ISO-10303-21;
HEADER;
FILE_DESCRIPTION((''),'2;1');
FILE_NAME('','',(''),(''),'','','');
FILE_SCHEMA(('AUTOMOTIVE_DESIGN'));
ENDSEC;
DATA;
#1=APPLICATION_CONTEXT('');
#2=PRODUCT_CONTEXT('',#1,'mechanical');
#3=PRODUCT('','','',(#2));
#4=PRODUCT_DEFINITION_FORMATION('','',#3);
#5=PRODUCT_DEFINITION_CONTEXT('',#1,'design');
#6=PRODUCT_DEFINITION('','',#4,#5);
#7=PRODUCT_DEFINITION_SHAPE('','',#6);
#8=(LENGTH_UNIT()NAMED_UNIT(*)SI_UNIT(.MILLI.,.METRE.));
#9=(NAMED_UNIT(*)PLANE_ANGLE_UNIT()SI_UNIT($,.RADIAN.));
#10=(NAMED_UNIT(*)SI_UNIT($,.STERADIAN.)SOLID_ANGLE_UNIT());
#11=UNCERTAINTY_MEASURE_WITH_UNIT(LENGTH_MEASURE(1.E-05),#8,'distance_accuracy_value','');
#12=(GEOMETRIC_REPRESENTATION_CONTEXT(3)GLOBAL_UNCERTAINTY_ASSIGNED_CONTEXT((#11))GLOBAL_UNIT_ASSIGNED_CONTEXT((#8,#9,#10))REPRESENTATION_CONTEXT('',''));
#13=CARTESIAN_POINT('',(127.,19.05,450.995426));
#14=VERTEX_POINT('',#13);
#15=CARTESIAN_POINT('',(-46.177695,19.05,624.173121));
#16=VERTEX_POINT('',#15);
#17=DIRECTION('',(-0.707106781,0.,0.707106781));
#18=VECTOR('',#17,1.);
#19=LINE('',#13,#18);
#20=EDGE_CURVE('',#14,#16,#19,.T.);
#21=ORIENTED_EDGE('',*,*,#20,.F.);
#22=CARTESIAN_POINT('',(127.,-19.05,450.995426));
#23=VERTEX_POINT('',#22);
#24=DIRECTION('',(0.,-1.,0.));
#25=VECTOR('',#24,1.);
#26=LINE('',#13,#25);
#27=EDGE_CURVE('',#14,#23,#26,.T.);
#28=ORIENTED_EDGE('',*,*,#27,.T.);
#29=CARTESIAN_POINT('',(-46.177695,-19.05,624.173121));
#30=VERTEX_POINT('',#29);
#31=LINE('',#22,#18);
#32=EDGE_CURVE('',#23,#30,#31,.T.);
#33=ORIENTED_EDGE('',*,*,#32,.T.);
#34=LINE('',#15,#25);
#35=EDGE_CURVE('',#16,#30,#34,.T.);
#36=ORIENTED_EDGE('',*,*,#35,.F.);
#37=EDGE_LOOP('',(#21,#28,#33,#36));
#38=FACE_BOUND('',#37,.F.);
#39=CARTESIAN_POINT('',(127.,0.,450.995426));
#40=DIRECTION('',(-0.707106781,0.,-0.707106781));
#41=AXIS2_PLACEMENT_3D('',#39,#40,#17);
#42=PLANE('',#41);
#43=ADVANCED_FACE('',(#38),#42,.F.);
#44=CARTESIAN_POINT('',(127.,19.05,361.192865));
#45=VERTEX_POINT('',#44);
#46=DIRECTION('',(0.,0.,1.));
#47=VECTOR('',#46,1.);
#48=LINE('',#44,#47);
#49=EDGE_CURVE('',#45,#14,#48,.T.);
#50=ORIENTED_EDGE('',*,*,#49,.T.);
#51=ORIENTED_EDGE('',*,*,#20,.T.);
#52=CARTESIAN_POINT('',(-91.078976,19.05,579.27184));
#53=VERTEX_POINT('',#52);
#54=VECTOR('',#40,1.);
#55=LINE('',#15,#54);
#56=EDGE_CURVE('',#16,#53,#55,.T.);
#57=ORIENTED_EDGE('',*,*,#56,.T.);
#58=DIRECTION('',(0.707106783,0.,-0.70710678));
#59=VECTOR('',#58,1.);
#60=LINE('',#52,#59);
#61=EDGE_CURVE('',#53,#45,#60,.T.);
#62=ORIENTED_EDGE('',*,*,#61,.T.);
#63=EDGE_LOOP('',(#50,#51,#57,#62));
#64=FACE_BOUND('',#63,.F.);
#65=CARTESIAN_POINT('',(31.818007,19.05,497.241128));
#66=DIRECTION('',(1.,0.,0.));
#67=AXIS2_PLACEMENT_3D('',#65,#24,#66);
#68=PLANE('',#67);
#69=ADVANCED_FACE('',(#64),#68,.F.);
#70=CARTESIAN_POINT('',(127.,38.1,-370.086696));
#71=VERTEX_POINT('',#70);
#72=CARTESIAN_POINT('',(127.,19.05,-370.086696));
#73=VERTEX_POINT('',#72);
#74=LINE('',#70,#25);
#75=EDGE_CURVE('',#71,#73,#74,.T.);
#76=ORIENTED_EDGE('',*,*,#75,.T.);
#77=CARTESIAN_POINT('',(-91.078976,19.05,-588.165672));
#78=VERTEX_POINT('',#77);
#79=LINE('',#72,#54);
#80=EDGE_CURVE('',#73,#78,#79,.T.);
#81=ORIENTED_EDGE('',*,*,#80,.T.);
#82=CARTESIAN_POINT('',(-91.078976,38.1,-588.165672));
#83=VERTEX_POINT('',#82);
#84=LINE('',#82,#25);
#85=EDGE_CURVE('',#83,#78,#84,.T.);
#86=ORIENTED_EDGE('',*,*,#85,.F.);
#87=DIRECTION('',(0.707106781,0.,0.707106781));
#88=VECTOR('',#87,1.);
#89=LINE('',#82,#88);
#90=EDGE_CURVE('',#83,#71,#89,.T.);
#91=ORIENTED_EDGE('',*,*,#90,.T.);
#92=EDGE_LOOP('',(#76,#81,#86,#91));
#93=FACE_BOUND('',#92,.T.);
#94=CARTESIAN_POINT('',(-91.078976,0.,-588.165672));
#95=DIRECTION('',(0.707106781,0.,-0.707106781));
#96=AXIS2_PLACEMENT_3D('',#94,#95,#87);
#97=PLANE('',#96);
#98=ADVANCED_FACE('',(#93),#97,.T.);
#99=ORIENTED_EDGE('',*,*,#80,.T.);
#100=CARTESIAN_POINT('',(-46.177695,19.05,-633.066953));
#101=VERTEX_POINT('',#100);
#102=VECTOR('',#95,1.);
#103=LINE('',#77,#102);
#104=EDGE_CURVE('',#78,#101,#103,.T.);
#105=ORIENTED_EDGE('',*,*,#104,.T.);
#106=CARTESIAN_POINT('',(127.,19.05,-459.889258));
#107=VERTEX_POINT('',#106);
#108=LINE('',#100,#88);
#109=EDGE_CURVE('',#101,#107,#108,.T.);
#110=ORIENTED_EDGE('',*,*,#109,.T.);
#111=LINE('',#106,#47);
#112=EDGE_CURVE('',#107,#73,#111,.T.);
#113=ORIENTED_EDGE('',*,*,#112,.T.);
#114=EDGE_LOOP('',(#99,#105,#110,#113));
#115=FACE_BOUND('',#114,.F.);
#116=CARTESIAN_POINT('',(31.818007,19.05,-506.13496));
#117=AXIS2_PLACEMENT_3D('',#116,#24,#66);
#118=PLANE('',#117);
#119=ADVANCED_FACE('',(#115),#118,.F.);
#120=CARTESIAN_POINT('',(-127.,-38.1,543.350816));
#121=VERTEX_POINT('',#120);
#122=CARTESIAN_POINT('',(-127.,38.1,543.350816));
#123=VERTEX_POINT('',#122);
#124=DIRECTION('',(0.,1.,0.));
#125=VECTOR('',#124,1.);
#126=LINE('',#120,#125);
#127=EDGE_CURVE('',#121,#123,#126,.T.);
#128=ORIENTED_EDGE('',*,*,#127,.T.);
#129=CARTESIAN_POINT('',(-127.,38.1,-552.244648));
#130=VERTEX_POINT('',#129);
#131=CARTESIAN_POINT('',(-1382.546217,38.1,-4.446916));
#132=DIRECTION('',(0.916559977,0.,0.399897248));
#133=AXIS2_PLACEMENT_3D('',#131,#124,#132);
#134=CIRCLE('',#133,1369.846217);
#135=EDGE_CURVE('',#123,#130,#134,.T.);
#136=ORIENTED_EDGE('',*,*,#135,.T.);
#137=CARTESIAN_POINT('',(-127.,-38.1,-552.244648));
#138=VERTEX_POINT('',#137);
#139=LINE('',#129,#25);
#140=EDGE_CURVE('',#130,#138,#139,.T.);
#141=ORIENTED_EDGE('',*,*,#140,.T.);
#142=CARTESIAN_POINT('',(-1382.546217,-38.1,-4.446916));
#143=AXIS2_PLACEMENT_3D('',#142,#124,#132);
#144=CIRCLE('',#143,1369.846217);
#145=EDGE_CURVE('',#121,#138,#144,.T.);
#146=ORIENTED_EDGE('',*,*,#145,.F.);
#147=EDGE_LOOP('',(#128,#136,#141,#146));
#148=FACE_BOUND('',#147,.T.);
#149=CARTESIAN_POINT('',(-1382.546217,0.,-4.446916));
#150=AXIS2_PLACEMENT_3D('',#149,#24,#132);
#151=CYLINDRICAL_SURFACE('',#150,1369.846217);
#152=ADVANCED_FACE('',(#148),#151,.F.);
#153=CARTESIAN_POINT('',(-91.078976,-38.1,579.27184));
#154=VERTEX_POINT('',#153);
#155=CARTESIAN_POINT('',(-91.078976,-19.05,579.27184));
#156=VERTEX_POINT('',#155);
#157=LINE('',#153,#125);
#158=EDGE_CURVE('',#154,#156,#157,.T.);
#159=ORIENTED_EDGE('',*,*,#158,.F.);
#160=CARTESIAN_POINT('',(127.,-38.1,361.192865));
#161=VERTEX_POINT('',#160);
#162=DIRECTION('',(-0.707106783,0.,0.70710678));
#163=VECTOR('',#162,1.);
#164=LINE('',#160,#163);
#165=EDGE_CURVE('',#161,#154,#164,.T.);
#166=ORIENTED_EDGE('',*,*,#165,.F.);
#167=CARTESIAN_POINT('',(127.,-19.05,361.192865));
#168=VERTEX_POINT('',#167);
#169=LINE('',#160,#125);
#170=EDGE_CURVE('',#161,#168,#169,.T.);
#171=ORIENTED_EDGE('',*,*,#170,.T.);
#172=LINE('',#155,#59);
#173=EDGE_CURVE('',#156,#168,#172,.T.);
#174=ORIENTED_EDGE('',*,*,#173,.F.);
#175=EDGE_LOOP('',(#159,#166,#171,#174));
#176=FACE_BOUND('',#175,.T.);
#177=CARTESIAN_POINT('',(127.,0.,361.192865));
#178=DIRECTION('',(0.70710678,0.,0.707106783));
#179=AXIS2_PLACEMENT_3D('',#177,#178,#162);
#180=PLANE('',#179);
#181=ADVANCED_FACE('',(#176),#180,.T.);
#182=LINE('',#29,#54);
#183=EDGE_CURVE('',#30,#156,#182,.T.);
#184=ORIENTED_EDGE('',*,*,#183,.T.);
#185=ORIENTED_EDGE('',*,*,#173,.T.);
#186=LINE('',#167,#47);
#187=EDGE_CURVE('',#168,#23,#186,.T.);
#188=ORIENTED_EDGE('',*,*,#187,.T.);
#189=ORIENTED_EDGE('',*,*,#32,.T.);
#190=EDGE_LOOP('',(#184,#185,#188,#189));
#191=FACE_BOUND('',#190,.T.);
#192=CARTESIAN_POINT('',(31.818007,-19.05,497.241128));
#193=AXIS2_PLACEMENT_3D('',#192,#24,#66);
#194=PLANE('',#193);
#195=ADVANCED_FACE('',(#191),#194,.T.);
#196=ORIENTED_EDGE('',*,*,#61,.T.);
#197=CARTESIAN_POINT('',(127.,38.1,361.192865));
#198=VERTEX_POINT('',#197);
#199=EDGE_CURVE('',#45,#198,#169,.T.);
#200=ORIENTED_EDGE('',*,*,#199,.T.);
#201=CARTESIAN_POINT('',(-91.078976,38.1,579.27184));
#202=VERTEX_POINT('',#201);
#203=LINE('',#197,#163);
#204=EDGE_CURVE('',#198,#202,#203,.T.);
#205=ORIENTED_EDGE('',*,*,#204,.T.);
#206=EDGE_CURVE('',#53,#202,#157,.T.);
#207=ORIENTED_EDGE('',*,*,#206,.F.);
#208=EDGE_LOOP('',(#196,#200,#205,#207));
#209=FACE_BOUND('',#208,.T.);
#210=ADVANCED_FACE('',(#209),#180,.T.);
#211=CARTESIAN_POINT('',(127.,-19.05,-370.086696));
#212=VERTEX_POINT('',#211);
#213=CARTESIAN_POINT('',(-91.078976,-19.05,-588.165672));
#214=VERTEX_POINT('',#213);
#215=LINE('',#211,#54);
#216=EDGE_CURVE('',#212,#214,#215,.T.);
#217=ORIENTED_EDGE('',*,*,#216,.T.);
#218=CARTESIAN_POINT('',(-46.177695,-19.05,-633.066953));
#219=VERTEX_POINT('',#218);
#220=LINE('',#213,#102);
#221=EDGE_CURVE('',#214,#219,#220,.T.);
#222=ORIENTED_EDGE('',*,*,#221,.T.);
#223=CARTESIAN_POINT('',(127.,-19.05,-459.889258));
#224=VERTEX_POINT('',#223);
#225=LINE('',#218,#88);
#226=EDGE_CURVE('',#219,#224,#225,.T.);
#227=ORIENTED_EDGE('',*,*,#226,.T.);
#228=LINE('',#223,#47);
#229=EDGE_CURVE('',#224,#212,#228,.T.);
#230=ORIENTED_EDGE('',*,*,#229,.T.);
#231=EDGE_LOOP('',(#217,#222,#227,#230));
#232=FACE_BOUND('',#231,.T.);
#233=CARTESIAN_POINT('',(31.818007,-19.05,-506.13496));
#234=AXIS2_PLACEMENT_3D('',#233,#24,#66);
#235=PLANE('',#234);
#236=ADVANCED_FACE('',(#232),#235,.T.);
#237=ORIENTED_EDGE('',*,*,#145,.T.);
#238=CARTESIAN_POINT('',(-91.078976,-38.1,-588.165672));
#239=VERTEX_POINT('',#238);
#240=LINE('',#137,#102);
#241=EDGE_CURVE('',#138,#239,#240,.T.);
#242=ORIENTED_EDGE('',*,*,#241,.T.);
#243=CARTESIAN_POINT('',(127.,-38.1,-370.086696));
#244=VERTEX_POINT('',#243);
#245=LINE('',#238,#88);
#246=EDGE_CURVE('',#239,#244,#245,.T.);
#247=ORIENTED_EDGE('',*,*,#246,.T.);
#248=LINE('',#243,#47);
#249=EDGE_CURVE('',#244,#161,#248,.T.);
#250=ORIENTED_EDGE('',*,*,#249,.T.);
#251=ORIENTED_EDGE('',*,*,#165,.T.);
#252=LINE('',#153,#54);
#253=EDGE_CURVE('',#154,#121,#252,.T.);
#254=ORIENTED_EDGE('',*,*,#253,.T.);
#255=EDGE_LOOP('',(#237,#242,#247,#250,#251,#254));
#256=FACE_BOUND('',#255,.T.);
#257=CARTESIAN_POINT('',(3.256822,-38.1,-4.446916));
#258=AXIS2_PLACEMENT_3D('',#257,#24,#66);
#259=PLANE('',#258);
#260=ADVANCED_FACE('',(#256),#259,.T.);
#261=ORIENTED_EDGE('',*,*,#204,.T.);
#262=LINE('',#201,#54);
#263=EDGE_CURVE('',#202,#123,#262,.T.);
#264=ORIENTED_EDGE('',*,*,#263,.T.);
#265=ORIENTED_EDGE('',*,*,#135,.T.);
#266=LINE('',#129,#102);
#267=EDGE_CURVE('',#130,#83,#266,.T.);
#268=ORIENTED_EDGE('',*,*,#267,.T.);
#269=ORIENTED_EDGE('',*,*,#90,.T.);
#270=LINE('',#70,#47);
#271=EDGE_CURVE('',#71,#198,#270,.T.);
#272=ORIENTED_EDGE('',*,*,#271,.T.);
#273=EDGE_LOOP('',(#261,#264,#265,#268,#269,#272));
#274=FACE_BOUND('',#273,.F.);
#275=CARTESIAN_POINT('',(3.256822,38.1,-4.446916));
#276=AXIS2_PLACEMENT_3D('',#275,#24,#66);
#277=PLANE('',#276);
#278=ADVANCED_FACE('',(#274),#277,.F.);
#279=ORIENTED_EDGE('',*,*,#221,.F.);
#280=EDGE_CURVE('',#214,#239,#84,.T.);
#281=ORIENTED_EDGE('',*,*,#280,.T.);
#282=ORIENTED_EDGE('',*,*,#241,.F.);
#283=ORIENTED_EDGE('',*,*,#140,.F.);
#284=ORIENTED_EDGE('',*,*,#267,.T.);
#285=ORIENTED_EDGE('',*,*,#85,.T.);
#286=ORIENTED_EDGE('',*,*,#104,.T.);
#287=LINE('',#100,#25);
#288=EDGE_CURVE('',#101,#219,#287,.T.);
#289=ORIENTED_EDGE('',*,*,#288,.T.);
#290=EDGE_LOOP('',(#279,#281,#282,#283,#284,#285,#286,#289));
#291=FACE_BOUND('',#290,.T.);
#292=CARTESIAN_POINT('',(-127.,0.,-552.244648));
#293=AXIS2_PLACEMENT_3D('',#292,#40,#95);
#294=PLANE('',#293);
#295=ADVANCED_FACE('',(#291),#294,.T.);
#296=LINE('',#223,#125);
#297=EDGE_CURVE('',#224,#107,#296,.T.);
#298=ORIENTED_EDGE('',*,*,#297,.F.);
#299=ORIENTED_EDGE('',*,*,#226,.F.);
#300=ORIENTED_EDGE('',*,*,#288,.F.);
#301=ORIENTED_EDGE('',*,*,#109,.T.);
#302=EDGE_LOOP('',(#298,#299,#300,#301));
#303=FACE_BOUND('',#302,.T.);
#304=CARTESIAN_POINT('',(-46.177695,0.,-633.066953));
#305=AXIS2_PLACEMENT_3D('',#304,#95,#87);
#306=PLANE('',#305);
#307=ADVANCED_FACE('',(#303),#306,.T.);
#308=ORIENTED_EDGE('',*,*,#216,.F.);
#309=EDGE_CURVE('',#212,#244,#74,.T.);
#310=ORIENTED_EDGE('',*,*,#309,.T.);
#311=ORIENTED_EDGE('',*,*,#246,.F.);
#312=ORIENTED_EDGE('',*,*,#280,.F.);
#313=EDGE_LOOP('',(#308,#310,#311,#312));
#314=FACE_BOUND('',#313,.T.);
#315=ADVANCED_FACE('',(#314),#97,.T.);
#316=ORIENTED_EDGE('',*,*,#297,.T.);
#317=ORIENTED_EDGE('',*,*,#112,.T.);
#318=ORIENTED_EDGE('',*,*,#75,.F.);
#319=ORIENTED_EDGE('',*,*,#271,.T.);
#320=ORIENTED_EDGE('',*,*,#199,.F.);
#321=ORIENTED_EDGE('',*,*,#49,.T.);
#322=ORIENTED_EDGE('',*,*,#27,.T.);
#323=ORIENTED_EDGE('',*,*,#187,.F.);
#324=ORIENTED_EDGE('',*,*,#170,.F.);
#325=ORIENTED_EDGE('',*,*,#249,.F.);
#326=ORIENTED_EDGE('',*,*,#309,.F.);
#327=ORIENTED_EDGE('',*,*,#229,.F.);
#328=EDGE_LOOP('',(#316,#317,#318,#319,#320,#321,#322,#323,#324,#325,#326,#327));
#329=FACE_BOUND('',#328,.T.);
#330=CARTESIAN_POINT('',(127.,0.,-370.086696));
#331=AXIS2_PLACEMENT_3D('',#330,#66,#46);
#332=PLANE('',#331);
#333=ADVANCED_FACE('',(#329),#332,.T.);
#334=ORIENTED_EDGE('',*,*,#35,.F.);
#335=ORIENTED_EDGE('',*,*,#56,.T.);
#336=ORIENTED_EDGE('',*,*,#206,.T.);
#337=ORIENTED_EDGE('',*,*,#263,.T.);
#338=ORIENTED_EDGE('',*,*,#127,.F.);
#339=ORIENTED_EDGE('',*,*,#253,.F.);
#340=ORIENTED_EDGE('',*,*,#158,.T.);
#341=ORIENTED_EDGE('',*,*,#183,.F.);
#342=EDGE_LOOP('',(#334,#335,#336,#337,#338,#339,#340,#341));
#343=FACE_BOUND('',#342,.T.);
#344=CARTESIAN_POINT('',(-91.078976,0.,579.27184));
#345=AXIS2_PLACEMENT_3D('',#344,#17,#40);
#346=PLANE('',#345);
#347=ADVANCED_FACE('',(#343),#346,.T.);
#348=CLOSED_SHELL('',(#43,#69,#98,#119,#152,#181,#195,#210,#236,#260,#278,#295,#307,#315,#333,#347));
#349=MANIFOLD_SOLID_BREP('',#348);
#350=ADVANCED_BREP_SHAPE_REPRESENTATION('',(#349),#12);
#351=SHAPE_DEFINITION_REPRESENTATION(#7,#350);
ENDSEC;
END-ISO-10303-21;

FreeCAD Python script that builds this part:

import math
import FreeCAD as App
import Part
import Sketcher
Q = App.Units.Quantity

doc = App.newDocument("Part")
body = doc.addObject("PartDesign::Body", "Body")

sketch1 = body.newObject("Sketcher::SketchObject", "Sketch")
sketch1.AttachmentSupport = (doc.getObject("XZ_Plane"), [""])
sketch1.MapMode = "FlatFace"
sketch1.addGeometry(Part.ArcOfCircle(Part.Circle(App.Vector(-1383, -4, 0), App.Vector(0, 0, 1), 1370), math.radians(-24), math.radians(24)), False)
sketch1.addGeometry(Part.LineSegment(App.Vector(-127, -552, 0), App.Vector(-91, -588, 0)), False)
sketch1.addGeometry(Part.LineSegment(App.Vector(-91, -588, 0), App.Vector(127, -370, 0)), False)
sketch1.addGeometry(Part.LineSegment(App.Vector(127, -370, 0), App.Vector(127, 361, 0)), False)
sketch1.addGeometry(Part.LineSegment(App.Vector(127, 361, 0), App.Vector(-91, 579, 0)), False)
sketch1.addGeometry(Part.LineSegment(App.Vector(-91, 579, 0), App.Vector(-127, 543, 0)), False)
sketch1.addConstraint(Sketcher.Constraint("Coincident", 0, 1, 1, 1))
sketch1.addConstraint(Sketcher.Constraint("Coincident", 1, 2, 2, 1))
sketch1.addConstraint(Sketcher.Constraint("Coincident", 2, 2, 3, 1))
sketch1.addConstraint(Sketcher.Constraint("Coincident", 3, 2, 4, 1))
sketch1.addConstraint(Sketcher.Constraint("Coincident", 4, 2, 5, 1))
sketch1.addConstraint(Sketcher.Constraint("Coincident", 5, 2, 0, 2))
sketch1.addConstraint(Sketcher.Constraint("Vertical", 3))
sketch1.addConstraint(Sketcher.Constraint("Perpendicular", 1, 2))
sketch1.addConstraint(Sketcher.Constraint("Perpendicular", 2, 4))
sketch1.addConstraint(Sketcher.Constraint("Perpendicular", 4, 5))
sketch1.addConstraint(Sketcher.Constraint("Vertical", 1, 2, 4, 2))
sketch1.addConstraint(Sketcher.Constraint("Equal", 2, 4))
sketch1.addConstraint(Sketcher.Constraint("Equal", 1, 5))
sketch1.addConstraint(Sketcher.Constraint("Distance", 1, Q("2 in")))
sketch1.addConstraint(Sketcher.Constraint("DistanceX", -1, 1, 2, 2, Q("5 in")))
sketch1.addConstraint(Sketcher.Constraint("DistanceX", 5, 2, -1, 1, Q("5 in")))
sketch1.addConstraint(Sketcher.Constraint("Radius", 0, Q("1369.846217 mm")))
sketch1.addConstraint(Sketcher.Constraint("DistanceY", 3, 1, 3, 2, Q("731.279561 mm")))
sketch1.addConstraint(Sketcher.Constraint("DistanceY", 1, 2, -1, 1, Q("588.165672 mm")))
pad1 = body.newObject("PartDesign::Pad", "Pad")
pad1.Profile = sketch1
pad1.Length = Q("3 in")
pad1.Midplane = True

sketch2 = body.newObject("Sketcher::SketchObject", "Sketch001")
sketch2.AttachmentSupport = (doc.getObject("XZ_Plane"), [""])
sketch2.MapMode = "FlatFace"
sketch2.addGeometry(Part.LineSegment(App.Vector(127, 361, 0), App.Vector(127, 451, 0)), False)
sketch2.addGeometry(Part.LineSegment(App.Vector(127, 451, 0), App.Vector(-46, 624, 0)), False)
sketch2.addGeometry(Part.LineSegment(App.Vector(-46, 624, 0), App.Vector(-91, 579, 0)), False)
sketch2.addGeometry(Part.LineSegment(App.Vector(-91, 579, 0), App.Vector(127, 361, 0)), False)
sketch2.addGeometry(Part.LineSegment(App.Vector(127, -370, 0), App.Vector(-91, -588, 0)), False)
sketch2.addGeometry(Part.LineSegment(App.Vector(-91, -588, 0), App.Vector(-46, -633, 0)), False)
sketch2.addGeometry(Part.LineSegment(App.Vector(-46, -633, 0), App.Vector(127, -460, 0)), False)
sketch2.addGeometry(Part.LineSegment(App.Vector(127, -460, 0), App.Vector(127, -370, 0)), False)
sketch2.addConstraint(Sketcher.Constraint("Coincident", 0, 2, 1, 1))
sketch2.addConstraint(Sketcher.Constraint("Coincident", 1, 2, 2, 1))
sketch2.addConstraint(Sketcher.Constraint("Coincident", 2, 2, 3, 1))
sketch2.addConstraint(Sketcher.Constraint("Coincident", 3, 2, 0, 1))
sketch2.addConstraint(Sketcher.Constraint("Coincident", 4, 2, 5, 1))
sketch2.addConstraint(Sketcher.Constraint("Coincident", 5, 2, 6, 1))
sketch2.addConstraint(Sketcher.Constraint("Coincident", 6, 2, 7, 1))
sketch2.addConstraint(Sketcher.Constraint("Coincident", 7, 2, 4, 1))
sketch2.addConstraint(Sketcher.Constraint("Vertical", 0))
sketch2.addConstraint(Sketcher.Constraint("Vertical", 7))
sketch2.addConstraint(Sketcher.Constraint("Perpendicular", 1, 2))
sketch2.addConstraint(Sketcher.Constraint("Perpendicular", 2, 3))
sketch2.addConstraint(Sketcher.Constraint("Perpendicular", 3, 4))
sketch2.addConstraint(Sketcher.Constraint("Perpendicular", 4, 5))
sketch2.addConstraint(Sketcher.Constraint("Perpendicular", 5, 6))
sketch2.addConstraint(Sketcher.Constraint("Vertical", 2, 2, 4, 2))
sketch2.addConstraint(Sketcher.Constraint("Vertical", 1, 2, 5, 2))
sketch2.addConstraint(Sketcher.Constraint("Vertical", 3, 2, 6, 2))
sketch2.addConstraint(Sketcher.Constraint("Equal", 3, 4))
sketch2.addConstraint(Sketcher.Constraint("DistanceX", -1, 1, 0, 2, Q("5 in")))
sketch2.addConstraint(Sketcher.Constraint("Distance", 2, Q("2.5 in")))
sketch2.addConstraint(Sketcher.Constraint("DistanceY", 4, 2, 0, 2, Q("1039.161098 mm")))
sketch2.addConstraint(Sketcher.Constraint("DistanceY", -1, 1, 1, 2, Q("624.173121 mm")))
sketch2.addConstraint(Sketcher.Constraint("DistanceY", 4, 2, -1, 1, Q("588.165672 mm")))
pad2 = body.newObject("PartDesign::Pad", "Pad001")
pad2.Profile = sketch2
pad2.Length = Q("1.5 in")
pad2.Midplane = True

doc.recompute()
